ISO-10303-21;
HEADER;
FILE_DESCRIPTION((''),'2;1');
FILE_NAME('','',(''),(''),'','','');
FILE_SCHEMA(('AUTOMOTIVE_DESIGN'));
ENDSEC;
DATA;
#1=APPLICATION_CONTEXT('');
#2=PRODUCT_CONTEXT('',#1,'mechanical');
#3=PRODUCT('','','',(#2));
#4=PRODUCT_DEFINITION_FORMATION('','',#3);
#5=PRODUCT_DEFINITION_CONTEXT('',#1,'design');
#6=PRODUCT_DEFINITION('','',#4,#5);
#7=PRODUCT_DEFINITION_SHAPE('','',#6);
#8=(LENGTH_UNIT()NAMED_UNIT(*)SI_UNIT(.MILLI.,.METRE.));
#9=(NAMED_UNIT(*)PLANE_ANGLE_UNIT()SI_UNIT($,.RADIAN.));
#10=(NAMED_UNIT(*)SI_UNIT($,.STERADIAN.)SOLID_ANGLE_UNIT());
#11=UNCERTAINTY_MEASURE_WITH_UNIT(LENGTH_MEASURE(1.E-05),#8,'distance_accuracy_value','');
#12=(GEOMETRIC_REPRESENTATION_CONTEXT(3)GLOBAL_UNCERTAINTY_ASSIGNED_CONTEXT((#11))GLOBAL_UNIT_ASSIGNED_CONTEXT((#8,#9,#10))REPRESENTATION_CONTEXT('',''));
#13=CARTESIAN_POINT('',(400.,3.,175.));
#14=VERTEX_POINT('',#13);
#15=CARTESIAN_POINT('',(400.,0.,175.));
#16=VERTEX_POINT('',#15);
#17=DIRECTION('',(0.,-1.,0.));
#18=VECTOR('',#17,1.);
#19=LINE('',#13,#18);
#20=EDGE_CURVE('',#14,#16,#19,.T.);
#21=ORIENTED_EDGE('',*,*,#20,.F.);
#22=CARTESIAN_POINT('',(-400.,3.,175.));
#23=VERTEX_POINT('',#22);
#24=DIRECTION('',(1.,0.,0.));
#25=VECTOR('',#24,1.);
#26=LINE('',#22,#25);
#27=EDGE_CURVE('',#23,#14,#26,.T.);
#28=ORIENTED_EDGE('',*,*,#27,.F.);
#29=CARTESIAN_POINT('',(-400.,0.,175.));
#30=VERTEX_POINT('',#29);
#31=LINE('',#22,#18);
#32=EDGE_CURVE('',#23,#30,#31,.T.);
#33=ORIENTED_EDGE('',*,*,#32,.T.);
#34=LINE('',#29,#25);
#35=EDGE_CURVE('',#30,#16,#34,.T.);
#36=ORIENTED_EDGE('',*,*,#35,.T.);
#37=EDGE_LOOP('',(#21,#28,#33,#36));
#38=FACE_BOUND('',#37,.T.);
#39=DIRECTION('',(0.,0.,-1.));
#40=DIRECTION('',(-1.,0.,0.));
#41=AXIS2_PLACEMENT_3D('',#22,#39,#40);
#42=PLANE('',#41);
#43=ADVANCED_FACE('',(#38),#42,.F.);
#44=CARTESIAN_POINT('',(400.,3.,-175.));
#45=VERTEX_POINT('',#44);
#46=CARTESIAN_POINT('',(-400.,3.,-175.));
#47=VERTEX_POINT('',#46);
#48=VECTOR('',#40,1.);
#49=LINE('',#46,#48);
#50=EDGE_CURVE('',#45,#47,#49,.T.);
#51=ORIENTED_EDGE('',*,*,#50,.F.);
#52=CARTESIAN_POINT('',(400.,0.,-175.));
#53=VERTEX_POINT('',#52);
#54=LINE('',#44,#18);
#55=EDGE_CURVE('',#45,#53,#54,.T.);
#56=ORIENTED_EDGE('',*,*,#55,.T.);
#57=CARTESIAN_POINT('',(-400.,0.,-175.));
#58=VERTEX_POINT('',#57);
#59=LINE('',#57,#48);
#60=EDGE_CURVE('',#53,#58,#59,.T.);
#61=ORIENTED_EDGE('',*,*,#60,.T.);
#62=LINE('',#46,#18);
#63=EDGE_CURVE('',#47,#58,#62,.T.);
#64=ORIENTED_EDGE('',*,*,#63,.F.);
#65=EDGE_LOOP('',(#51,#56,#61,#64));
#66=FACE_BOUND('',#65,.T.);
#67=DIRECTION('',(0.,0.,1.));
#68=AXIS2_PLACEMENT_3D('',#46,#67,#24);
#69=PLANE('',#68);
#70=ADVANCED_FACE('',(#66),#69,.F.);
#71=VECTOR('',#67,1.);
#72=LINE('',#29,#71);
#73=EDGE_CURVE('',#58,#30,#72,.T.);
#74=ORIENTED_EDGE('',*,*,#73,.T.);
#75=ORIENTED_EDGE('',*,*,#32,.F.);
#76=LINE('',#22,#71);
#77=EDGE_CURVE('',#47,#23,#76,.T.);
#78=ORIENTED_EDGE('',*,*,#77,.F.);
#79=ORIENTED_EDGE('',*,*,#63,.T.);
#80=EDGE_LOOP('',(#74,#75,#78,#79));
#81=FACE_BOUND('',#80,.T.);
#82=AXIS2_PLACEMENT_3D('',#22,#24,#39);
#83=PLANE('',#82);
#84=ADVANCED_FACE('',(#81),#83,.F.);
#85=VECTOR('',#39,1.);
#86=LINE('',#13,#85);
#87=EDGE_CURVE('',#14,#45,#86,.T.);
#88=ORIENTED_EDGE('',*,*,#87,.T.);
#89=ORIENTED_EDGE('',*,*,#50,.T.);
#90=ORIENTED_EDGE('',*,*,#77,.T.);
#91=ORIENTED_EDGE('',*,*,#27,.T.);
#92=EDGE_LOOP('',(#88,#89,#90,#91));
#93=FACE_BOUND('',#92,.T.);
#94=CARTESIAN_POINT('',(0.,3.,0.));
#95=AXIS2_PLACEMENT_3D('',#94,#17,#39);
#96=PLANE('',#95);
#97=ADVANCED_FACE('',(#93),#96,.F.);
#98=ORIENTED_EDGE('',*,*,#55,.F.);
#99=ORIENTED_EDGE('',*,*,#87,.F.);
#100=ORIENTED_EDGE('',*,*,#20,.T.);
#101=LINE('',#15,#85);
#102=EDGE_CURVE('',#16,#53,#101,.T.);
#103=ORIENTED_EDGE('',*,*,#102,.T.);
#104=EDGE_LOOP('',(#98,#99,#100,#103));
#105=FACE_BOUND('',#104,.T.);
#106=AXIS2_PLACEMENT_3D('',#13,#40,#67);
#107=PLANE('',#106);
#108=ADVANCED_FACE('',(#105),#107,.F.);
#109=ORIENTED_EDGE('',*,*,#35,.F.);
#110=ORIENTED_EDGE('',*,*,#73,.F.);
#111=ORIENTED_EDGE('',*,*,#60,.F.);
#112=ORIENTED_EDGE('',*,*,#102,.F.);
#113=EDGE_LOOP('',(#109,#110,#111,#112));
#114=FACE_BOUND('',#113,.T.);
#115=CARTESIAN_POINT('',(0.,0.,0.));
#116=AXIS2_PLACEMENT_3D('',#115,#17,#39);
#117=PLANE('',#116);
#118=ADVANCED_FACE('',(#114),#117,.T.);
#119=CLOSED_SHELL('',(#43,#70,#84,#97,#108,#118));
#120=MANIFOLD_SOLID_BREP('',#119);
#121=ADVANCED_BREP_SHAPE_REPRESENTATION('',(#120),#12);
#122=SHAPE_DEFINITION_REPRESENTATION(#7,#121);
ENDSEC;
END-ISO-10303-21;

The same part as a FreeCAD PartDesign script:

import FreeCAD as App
import Part
import Sketcher


def add_polygon(sketch, points):
    """Adds a closed chain of lines whose ends are joined by coincident constraints."""
    first, n = sketch.GeometryCount, len(points)
    for a, b in zip(points, points[1:] + points[:1]):
        sketch.addGeometry(Part.LineSegment(App.Vector(*a, 0), App.Vector(*b, 0)), False)
    for i in range(n):
        sketch.addConstraint(Sketcher.Constraint("Coincident", first + i, 2, first + (i + 1) % n, 1))

doc = App.newDocument("Part")
body = doc.addObject("PartDesign::Body", "Body")

sketch1 = body.newObject("Sketcher::SketchObject", "Sketch")
sketch1.AttachmentSupport = (doc.getObject("XZ_Plane"), [""])
sketch1.MapMode = "FlatFace"
add_polygon(sketch1, [(-400, -175), (-400, 175), (400, 175), (400, -175)])
sketch1.addConstraint([
    Sketcher.Constraint("Vertical", 0),
    Sketcher.Constraint("Horizontal", 1),
    Sketcher.Constraint("Vertical", 2),
    Sketcher.Constraint("Horizontal", 3),
    Sketcher.Constraint("Symmetric", 0, 2, 2, 2, -1, 1),
    Sketcher.Constraint("DistanceX", 1, 1, 1, 2, 800.0),
    Sketcher.Constraint("DistanceY", 0, 1, 0, 2, 350.0),
])
pad1 = body.newObject("PartDesign::Pad", "Pad")
pad1.Profile = sketch1
pad1.Length = 3
pad1.Reversed = True

doc.recompute()
